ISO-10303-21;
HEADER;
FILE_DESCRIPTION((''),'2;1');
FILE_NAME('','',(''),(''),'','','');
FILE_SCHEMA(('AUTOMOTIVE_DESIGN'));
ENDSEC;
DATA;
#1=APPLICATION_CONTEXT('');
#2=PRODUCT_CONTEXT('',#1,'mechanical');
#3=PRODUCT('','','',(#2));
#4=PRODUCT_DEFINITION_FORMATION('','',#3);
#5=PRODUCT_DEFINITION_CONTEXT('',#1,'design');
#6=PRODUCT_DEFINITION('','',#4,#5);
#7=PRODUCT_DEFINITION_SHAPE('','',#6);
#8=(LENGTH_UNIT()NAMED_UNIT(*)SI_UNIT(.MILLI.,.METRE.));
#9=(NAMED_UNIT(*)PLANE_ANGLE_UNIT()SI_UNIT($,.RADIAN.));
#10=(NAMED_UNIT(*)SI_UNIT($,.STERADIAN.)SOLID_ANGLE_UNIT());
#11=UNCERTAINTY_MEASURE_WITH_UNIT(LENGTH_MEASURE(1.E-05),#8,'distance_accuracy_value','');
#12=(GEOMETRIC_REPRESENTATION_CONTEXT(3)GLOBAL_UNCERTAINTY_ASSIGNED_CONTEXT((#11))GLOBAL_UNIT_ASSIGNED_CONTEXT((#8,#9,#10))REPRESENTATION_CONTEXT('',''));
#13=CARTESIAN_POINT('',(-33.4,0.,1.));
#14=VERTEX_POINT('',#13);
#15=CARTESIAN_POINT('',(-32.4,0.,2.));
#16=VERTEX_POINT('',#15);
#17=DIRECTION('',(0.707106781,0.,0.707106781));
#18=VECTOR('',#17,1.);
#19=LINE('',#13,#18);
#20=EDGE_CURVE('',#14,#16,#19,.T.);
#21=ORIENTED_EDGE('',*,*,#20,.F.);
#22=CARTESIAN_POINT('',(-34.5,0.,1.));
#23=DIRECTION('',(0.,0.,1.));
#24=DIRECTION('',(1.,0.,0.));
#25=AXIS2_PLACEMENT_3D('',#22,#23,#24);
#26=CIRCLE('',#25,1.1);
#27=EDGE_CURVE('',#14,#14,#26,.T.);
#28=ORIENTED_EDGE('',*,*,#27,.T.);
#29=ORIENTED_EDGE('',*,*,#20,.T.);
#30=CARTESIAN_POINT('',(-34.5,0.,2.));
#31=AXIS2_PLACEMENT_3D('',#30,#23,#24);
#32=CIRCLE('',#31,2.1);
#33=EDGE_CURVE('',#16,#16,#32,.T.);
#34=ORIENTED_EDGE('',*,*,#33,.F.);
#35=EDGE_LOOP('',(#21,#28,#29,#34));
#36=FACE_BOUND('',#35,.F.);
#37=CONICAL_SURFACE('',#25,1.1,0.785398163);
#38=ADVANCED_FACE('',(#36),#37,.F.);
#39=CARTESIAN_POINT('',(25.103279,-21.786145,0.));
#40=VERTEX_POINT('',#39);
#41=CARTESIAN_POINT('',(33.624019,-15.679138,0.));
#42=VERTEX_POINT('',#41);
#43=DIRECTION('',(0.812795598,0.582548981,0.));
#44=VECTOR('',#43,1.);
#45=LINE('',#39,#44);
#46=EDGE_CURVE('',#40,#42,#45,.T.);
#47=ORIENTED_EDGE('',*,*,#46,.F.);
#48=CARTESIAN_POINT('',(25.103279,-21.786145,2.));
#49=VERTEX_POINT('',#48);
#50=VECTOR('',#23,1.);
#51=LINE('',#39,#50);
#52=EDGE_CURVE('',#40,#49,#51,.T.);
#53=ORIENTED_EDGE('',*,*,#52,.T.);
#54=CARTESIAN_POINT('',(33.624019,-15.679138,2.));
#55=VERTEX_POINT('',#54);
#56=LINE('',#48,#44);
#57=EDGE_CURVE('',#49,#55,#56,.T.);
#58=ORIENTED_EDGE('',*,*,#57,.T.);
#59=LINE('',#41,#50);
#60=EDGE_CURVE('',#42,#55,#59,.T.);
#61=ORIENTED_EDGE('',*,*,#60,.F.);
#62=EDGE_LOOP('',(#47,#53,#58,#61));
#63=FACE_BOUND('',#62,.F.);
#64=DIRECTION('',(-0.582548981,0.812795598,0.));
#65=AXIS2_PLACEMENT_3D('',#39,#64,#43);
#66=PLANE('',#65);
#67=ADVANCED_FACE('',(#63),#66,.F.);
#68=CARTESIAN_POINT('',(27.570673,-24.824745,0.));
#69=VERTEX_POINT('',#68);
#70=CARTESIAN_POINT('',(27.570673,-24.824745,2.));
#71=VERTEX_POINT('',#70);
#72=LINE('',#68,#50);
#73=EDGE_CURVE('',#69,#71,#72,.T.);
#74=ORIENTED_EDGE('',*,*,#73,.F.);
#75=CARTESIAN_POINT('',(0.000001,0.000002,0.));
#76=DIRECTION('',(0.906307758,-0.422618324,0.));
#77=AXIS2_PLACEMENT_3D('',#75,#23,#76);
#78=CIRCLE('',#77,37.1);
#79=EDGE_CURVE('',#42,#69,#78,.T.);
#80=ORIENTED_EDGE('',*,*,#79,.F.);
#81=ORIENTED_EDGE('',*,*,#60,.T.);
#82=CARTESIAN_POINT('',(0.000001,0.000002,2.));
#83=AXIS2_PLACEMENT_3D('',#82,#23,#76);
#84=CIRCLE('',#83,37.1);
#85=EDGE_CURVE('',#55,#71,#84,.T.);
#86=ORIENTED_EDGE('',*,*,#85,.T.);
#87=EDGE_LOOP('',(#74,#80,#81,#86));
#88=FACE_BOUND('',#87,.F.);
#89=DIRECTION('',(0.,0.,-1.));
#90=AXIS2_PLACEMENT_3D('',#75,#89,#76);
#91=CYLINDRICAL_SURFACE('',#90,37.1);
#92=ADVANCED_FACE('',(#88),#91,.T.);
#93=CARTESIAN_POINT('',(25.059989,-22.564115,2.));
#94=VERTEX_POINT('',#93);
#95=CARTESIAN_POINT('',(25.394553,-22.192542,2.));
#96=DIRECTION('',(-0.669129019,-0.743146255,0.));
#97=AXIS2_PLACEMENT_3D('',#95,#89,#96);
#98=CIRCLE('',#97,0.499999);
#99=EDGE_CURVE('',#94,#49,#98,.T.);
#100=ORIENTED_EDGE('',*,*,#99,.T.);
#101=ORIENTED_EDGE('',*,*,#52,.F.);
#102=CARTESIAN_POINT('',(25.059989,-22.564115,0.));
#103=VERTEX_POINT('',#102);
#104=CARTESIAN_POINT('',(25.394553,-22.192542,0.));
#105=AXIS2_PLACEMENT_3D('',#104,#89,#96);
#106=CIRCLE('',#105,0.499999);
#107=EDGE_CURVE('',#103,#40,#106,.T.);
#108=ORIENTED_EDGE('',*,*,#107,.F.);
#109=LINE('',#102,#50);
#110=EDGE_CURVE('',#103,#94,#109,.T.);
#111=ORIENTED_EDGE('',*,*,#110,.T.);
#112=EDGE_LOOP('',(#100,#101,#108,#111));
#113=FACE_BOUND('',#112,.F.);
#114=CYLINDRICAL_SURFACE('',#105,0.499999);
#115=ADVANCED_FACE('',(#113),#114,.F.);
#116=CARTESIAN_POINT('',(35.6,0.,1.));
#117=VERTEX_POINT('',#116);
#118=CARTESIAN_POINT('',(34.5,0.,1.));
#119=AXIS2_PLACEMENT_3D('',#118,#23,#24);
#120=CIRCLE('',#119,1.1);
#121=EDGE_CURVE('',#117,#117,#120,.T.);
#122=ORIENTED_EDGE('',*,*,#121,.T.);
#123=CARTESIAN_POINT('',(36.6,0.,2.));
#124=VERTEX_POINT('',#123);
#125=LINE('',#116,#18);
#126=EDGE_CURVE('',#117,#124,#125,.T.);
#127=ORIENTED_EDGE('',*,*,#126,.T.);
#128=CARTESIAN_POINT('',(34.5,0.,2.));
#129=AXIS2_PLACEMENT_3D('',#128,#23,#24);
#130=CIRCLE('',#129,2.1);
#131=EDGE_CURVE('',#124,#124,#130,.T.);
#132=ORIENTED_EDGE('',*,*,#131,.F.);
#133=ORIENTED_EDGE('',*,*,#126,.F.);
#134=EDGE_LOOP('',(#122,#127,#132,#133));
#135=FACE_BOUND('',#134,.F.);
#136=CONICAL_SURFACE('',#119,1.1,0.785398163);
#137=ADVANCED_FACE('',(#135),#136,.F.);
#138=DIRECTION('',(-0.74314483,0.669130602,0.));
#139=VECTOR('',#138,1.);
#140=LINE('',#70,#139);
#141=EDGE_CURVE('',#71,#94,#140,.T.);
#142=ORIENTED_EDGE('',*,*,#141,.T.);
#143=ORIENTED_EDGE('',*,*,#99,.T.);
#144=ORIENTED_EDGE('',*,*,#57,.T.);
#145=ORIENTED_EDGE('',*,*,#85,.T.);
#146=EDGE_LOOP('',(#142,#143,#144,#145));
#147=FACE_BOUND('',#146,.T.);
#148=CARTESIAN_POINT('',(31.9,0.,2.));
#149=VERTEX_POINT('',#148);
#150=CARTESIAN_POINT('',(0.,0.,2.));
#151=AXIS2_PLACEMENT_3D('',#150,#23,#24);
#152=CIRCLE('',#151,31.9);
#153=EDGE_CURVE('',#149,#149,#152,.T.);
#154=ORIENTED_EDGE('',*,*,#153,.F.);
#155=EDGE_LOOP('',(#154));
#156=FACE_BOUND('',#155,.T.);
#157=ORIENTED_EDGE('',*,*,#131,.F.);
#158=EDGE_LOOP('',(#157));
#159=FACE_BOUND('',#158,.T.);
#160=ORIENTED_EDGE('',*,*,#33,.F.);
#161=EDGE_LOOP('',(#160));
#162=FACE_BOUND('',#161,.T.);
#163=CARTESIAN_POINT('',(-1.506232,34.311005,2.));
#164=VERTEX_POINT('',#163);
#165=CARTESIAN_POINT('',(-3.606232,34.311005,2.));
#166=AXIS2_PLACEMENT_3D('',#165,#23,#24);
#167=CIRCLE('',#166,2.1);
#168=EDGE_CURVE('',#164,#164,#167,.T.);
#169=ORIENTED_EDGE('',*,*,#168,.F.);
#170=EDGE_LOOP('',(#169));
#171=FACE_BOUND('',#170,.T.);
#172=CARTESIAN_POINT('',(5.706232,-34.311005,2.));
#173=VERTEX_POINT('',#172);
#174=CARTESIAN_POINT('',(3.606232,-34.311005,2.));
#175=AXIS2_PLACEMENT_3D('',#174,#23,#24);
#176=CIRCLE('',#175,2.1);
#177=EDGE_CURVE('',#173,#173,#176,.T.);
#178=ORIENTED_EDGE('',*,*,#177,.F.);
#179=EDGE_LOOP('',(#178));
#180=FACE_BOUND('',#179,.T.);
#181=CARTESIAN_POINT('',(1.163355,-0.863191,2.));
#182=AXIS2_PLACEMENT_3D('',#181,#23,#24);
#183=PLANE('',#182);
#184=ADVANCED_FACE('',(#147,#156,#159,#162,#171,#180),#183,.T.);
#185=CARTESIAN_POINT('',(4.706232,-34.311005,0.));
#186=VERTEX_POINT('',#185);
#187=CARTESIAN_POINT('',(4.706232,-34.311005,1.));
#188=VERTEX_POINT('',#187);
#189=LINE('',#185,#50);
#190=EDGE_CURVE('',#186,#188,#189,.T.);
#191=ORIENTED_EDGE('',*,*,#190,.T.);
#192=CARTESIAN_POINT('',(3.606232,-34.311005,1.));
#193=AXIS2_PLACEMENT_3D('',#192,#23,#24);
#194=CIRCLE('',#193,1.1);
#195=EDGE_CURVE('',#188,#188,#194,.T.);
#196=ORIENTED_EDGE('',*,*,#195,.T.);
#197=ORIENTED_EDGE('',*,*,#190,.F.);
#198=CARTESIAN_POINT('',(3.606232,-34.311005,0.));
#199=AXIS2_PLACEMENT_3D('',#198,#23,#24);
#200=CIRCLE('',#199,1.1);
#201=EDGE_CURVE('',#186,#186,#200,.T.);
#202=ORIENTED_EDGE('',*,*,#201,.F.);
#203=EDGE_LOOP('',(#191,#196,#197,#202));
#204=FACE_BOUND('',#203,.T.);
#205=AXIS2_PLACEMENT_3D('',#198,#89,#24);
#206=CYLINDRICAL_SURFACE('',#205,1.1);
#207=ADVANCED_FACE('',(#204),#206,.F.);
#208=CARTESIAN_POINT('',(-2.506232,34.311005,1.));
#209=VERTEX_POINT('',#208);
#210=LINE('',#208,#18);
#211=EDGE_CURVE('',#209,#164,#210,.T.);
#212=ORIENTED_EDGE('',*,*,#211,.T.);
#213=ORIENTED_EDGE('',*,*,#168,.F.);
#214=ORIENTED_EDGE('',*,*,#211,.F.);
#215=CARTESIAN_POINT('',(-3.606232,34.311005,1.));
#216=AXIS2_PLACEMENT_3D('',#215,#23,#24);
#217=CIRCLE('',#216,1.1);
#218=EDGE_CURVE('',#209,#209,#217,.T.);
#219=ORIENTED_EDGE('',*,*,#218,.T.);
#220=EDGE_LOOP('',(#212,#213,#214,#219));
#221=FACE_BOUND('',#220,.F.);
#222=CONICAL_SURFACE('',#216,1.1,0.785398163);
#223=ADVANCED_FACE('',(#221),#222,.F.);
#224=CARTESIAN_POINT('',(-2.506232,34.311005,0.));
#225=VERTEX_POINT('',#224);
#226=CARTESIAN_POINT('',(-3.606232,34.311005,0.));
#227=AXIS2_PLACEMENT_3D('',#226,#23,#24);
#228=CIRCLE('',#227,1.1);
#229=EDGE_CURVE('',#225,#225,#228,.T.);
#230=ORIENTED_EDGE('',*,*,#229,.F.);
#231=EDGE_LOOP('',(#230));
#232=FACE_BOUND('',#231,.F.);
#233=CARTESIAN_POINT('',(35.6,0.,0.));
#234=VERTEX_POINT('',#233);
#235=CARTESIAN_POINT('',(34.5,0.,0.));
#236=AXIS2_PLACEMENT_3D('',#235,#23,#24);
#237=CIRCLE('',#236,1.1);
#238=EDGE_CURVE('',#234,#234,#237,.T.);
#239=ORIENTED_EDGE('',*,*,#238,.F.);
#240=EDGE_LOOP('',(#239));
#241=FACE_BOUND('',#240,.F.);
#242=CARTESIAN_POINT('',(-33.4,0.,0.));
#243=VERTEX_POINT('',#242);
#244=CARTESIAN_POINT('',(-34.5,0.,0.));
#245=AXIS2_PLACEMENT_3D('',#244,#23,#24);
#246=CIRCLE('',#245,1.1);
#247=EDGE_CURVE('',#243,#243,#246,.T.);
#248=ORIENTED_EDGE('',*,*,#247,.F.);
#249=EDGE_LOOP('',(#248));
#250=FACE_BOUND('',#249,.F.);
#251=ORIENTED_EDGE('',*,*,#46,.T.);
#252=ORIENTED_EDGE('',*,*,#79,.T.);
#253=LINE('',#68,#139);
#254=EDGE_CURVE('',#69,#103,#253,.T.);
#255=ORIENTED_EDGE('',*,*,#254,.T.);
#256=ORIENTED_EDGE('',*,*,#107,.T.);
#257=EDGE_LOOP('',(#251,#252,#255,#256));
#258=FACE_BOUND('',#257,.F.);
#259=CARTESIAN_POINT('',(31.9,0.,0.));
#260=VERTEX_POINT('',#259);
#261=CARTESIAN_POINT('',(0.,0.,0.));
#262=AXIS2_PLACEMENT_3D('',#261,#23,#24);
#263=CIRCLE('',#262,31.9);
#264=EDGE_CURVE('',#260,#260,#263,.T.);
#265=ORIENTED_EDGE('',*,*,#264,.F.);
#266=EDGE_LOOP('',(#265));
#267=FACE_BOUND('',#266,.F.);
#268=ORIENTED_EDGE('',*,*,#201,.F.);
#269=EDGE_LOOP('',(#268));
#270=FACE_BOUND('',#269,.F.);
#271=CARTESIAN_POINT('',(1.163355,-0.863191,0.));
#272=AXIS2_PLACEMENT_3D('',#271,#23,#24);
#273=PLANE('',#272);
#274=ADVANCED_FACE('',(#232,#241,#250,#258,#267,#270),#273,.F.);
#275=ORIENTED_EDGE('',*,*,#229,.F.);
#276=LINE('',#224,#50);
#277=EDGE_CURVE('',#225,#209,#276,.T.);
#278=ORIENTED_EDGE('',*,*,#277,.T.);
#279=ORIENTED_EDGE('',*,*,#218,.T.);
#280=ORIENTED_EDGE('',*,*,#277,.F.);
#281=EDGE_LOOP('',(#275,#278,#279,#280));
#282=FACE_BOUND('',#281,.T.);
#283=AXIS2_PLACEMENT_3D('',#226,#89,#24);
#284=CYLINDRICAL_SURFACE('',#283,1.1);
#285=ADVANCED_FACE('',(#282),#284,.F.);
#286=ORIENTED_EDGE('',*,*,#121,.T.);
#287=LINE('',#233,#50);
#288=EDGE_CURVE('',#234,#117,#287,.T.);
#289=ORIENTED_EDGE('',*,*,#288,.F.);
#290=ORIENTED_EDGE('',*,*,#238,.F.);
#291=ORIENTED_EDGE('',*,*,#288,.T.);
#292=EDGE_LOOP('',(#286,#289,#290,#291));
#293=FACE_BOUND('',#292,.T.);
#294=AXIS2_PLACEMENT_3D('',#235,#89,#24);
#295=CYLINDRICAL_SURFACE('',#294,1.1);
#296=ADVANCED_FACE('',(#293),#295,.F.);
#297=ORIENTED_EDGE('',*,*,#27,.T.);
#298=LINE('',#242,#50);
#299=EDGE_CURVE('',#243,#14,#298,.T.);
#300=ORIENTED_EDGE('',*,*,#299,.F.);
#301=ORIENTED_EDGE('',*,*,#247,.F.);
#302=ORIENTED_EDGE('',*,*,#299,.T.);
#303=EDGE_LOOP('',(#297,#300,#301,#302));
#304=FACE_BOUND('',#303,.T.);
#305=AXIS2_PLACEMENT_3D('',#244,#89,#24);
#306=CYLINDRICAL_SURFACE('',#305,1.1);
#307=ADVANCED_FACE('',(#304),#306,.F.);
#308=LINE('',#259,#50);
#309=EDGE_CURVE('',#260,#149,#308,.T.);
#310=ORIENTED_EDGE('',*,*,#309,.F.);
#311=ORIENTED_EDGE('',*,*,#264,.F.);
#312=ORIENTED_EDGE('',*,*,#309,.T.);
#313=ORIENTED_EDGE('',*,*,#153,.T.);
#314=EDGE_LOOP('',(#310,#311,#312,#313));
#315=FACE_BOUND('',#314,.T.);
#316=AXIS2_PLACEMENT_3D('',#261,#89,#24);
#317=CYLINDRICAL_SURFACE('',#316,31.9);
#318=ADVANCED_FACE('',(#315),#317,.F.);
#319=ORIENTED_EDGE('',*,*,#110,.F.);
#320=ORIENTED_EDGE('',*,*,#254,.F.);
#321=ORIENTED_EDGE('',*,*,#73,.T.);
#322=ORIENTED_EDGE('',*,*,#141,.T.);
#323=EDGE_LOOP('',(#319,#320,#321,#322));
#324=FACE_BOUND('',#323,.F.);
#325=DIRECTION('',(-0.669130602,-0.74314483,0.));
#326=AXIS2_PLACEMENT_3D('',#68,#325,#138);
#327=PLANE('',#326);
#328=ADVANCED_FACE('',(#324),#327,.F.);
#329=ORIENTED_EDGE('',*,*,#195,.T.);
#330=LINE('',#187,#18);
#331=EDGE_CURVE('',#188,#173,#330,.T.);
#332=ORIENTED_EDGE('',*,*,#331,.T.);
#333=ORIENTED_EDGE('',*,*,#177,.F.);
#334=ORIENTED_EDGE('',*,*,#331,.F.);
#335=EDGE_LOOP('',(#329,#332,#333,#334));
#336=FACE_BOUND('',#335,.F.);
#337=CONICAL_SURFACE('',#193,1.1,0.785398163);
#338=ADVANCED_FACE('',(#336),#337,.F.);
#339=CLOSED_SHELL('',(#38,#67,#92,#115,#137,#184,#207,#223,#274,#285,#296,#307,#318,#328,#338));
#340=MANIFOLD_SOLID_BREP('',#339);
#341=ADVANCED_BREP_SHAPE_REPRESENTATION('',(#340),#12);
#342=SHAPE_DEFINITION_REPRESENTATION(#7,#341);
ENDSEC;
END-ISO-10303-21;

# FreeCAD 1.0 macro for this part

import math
import FreeCAD as App
import Part
import Sketcher
Q = App.Units.Quantity


def edges_at(feature, points):
    """Names of the edges that pass closest to the given points."""
    edges = feature.Shape.Edges
    near = lambda p: min(range(len(edges)), key=lambda i: edges[i].distToShape(Part.Vertex(*p))[0])
    return sorted({f"Edge{near(p) + 1}" for p in points})

doc = App.newDocument("Part")
body = doc.addObject("PartDesign::Body", "Body")

sketch1 = body.newObject("Sketcher::SketchObject", "Sketch")
sketch1.AttachmentSupport = (doc.getObject("XY_Plane"), [""])
sketch1.MapMode = "FlatFace"
sketch1.addGeometry(Part.LineSegment(App.Vector(25.103279, -21.786145, 0), App.Vector(33.624019, -15.679138, 0)), False)
sketch1.addGeometry(Part.ArcOfCircle(Part.Circle(App.Vector(0.000001, 0.000002, 0), App.Vector(0, 0, 1), 37.1), math.radians(-25.000004), math.radians(317.999997)), False)
sketch1.addGeometry(Part.LineSegment(App.Vector(27.570673, -24.824745, 0), App.Vector(25.059989, -22.564115, 0)), False)
sketch1.addGeometry(Part.ArcOfCircle(Part.Circle(App.Vector(25.394553, -22.192542, 0), App.Vector(0, 0, 1), 0.499999), math.radians(125.63002), math.radians(228.000122)), False)
sketch1.addGeometry(Part.Circle(App.Vector(3.606232, -34.311005, 0), App.Vector(0, 0, 1), 1.1), False)
sketch1.addGeometry(Part.Circle(App.Vector(-34.5, 0, 0), App.Vector(0, 0, 1), 1.1), False)
sketch1.addGeometry(Part.Circle(App.Vector(-3.606232, 34.311005, 0), App.Vector(0, 0, 1), 1.1), False)
sketch1.addGeometry(Part.Circle(App.Vector(0, 0, 0), App.Vector(0, 0, 1), 31.9), False)
sketch1.addGeometry(Part.Circle(App.Vector(34.5, 0, 0), App.Vector(0, 0, 1), 1.1), False)
sketch1.addConstraint(Sketcher.Constraint("Coincident", 0, 2, 1, 1))
sketch1.addConstraint(Sketcher.Constraint("Coincident", 1, 2, 2, 1))
sketch1.addConstraint(Sketcher.Constraint("Coincident", 2, 2, 3, 2))
sketch1.addConstraint(Sketcher.Constraint("Tangent", 3, 1, 0, 1))
sketch1.addConstraint(Sketcher.Constraint("Coincident", 1, 3, -1, 1))
sketch1.addConstraint(Sketcher.Constraint("Coincident", 7, 3, -1, 1))
sketch1.addConstraint(Sketcher.Constraint("Equal", 4, 5))
sketch1.addConstraint(Sketcher.Constraint("Equal", 5, 6))
sketch1.addConstraint(Sketcher.Constraint("Equal", 6, 8))
sketch1.addConstraint(Sketcher.Constraint("Symmetric", 4, 3, 6, 3, -1, 1))
sketch1.addConstraint(Sketcher.Constraint("Symmetric", 5, 3, 8, 3, -1, 1))
sketch1.addConstraint(Sketcher.Constraint("PointOnObject", 5, 3, -1))
sketch1.addConstraint(Sketcher.Constraint("Diameter", 4, Q("2.2 mm")))
sketch1.addConstraint(Sketcher.Constraint("Diameter", 7, Q("63.8 mm")))
sketch1.addConstraint(Sketcher.Constraint("Radius", 1, Q("37.1 mm")))
sketch1.addConstraint(Sketcher.Constraint("Radius", 3, Q("0.499999 mm")))
sketch1.addConstraint(Sketcher.Constraint("Angle", 2, Q("138 deg")))
sketch1.addConstraint(Sketcher.Constraint("DistanceX", 5, 3, -1, 1, Q("34.5 mm")))
sketch1.addConstraint(Sketcher.Constraint("DistanceY", 1, 2, 3, 1, Q("3.0386 mm")))
sketch1.addConstraint(Sketcher.Constraint("Distance", 0, Q("10.483251 mm")))
sketch1.addConstraint(Sketcher.Constraint("Distance", 2, Q("3.378459 mm")))
sketch1.addConstraint(Sketcher.Constraint("DistanceX", -1, 1, 4, 3, Q("3.606232 mm")))
sketch1.addConstraint(Sketcher.Constraint("DistanceX", -1, 1, 0, 2, Q("33.624019 mm")))
sketch1.addConstraint(Sketcher.Constraint("DistanceY", 4, 3, 6, 3, Q("68.62201 mm")))
pad1 = body.newObject("PartDesign::Pad", "Pad")
pad1.Profile = sketch1
pad1.Length = 2
doc.recompute()

chamfer = body.newObject("PartDesign::Chamfer", "Chamfer")
chamfer.Base = (pad1, edges_at(pad1, [
    (33.4, 0, 2),
    (-4.706, 34.311, 2),
    (-35.6, 0, 2),
    (2.506, -34.311, 2),
]))
chamfer.ChamferType = "Two distances"
chamfer.Size = 1
chamfer.Size2 = 1

doc.recompute()
